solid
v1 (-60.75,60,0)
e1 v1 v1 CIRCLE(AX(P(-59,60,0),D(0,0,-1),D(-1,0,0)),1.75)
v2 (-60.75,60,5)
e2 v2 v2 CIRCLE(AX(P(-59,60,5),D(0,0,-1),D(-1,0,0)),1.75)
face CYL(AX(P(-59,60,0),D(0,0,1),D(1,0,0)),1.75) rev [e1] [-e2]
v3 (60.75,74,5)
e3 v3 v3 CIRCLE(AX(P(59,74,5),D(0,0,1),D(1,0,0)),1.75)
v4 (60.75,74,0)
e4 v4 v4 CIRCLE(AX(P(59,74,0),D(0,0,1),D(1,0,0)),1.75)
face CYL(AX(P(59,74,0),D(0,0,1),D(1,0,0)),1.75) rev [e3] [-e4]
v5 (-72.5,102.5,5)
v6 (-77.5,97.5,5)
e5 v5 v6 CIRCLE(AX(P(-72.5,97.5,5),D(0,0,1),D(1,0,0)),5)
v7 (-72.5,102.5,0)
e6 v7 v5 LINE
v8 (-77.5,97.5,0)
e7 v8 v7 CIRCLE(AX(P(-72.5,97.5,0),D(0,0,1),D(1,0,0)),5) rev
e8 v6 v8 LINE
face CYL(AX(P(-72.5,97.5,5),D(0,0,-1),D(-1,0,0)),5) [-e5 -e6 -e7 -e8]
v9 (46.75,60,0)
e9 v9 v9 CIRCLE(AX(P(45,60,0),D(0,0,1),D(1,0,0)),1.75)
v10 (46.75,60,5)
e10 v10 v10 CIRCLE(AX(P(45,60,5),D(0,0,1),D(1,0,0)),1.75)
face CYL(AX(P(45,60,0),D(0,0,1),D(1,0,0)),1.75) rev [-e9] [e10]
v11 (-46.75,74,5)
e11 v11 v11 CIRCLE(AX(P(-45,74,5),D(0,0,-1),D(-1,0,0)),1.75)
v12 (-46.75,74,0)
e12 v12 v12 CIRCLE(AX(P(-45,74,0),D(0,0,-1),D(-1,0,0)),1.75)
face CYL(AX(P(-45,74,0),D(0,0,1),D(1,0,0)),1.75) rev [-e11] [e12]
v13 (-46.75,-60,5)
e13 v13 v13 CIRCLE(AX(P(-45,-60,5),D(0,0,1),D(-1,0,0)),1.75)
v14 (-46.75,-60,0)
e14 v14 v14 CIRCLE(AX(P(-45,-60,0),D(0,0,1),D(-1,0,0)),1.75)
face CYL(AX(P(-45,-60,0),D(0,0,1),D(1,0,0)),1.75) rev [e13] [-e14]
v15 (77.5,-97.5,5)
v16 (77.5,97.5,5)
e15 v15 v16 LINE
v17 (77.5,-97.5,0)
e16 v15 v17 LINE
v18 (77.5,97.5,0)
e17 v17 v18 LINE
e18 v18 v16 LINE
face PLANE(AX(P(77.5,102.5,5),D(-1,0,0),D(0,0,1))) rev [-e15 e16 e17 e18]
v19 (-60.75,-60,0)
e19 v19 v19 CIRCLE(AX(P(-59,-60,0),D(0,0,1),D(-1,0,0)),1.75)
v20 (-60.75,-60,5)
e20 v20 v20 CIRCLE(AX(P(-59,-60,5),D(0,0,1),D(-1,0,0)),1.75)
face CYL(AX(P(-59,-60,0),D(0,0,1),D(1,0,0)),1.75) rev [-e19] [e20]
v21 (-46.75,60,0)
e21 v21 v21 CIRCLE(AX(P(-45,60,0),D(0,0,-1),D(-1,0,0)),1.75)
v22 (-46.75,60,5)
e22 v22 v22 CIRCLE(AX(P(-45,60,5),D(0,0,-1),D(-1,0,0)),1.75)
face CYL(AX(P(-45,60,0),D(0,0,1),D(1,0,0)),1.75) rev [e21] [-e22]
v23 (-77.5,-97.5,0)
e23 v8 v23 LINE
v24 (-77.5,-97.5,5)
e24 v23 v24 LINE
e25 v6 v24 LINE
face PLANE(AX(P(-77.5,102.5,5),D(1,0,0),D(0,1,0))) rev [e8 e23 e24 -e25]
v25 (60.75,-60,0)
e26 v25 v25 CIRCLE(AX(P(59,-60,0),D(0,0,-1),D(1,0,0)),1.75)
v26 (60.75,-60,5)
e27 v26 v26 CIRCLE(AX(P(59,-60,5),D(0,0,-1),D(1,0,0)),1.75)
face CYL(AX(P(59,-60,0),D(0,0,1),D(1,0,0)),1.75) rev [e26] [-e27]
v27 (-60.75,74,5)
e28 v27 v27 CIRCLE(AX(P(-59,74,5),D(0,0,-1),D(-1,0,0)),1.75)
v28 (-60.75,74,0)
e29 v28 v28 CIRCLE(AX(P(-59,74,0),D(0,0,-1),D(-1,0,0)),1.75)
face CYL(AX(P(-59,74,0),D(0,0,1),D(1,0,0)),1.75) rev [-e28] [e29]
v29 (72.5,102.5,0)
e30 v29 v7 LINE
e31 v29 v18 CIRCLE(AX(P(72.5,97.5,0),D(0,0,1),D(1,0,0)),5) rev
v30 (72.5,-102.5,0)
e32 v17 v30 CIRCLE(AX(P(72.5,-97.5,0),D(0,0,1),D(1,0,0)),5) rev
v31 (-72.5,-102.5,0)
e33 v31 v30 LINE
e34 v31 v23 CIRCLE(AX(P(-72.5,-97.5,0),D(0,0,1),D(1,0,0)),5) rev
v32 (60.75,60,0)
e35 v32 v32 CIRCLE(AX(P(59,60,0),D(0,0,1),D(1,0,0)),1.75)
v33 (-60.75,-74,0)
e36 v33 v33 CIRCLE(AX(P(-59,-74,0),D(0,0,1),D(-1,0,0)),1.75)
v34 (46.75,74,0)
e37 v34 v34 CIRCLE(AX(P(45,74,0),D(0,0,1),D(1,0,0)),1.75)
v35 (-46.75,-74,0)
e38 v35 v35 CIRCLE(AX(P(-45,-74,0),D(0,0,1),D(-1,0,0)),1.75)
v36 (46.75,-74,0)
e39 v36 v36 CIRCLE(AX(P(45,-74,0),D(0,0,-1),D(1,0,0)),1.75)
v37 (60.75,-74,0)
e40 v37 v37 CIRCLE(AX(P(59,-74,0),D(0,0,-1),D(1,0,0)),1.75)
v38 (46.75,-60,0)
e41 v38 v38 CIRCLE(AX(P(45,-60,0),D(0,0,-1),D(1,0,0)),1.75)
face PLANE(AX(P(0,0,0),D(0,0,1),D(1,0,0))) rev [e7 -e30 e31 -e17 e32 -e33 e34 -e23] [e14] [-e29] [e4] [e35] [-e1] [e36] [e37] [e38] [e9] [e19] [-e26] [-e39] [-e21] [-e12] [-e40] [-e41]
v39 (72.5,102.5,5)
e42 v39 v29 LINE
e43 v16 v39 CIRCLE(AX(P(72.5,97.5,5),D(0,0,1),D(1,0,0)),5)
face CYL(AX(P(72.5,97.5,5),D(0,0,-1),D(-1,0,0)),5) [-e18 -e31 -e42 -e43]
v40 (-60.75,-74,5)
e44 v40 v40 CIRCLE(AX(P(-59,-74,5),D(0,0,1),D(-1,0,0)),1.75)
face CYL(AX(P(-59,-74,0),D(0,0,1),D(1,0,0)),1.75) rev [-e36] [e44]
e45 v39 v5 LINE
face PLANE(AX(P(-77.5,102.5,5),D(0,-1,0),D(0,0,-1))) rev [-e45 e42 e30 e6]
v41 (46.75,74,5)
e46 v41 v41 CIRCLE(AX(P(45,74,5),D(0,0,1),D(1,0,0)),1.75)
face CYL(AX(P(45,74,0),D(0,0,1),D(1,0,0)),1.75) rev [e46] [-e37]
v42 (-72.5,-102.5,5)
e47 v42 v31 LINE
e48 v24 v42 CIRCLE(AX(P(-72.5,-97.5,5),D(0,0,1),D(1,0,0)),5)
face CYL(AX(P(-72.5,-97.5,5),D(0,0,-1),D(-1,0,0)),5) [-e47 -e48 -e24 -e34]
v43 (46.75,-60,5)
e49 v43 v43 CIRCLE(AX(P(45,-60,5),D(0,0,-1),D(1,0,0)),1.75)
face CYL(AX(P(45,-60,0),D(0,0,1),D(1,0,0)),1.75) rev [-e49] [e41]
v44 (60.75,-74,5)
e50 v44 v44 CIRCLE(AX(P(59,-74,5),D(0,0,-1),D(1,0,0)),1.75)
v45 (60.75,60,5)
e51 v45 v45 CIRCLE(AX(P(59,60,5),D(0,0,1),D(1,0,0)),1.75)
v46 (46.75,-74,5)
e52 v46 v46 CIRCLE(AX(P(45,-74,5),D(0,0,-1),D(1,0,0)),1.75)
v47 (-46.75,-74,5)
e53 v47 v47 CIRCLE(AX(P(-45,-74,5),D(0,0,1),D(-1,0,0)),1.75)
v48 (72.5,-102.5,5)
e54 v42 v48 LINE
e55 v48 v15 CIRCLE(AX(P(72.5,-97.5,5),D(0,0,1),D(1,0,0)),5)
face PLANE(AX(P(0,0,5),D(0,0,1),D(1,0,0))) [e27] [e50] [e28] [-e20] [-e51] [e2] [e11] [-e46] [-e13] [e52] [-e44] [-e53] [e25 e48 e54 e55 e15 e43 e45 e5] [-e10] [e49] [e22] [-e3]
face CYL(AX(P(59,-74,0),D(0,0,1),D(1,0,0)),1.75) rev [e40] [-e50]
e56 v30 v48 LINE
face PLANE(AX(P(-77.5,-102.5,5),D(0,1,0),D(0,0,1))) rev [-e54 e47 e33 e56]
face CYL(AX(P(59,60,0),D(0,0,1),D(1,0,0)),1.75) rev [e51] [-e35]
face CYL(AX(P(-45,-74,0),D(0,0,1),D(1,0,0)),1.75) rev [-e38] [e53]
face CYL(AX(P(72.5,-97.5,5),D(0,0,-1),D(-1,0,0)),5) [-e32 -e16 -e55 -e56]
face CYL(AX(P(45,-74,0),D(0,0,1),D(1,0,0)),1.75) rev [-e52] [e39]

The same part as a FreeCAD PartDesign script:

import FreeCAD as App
import Part
import Sketcher
from FreeCAD import Vector


def edges_at(feature, points):
    """Names of the edges that pass closest to the given points."""
    edges = feature.Shape.Edges
    near = lambda p: min(range(len(edges)), key=lambda i: edges[i].distToShape(Part.Vertex(*p))[0])
    return sorted({f"Edge{near(p) + 1}" for p in points})

doc = App.newDocument("Part")
params = doc.addObject("Spreadsheet::Sheet", "Params")
for row, (alias, value) in enumerate([
    ("sketch1_width", "155 mm"),
    ("sketch1_height", "205 mm"),
    ("pad1_length", "5 mm"),
    ("sketch2_diameter", "3.5 mm"),
    ("sketch3_diameter", "3.5 mm"),
    ("fillet_radius", "5 mm"),
], start=1):
    params.set(f"A{row}", alias)
    params.set(f"B{row}", "=" + value)
    params.setAlias(f"B{row}", alias)

body = doc.addObject("PartDesign::Body", "Body")

sketch1 = body.newObject("Sketcher::SketchObject", "Sketch")
sketch1.AttachmentSupport = (doc.getObject("XY_Plane"), [""])
sketch1.MapMode = "FlatFace"
sketch1.addGeometry([
    Part.LineSegment(Vector(-78, 102, 0), Vector(-78, -102, 0)),
    Part.LineSegment(Vector(-78, -102, 0), Vector(78, -102, 0)),
    Part.LineSegment(Vector(78, -102, 0), Vector(78, 102, 0)),
    Part.LineSegment(Vector(78, 102, 0), Vector(-78, 102, 0)),
], False)
sketch1.addConstraint([
    Sketcher.Constraint("Coincident", 0, 2, 1, 1),
    Sketcher.Constraint("Coincident", 1, 2, 2, 1),
    Sketcher.Constraint("Coincident", 2, 2, 3, 1),
    Sketcher.Constraint("Coincident", 3, 2, 0, 1),
    Sketcher.Constraint("Vertical", 0),
    Sketcher.Constraint("Horizontal", 1),
    Sketcher.Constraint("Vertical", 2),
    Sketcher.Constraint("Horizontal", 3),
    Sketcher.Constraint("Symmetric", 0, 2, 2, 2, -1, 1),
    Sketcher.Constraint("DistanceX", 1, 1, 1, 2, 155.0),
    Sketcher.Constraint("DistanceY", 0, 2, 0, 1, 205.0),
])
sketch1.setExpression("Constraints[9]", "Params.sketch1_width")
sketch1.setExpression("Constraints[10]", "Params.sketch1_height")
pad1 = body.newObject("PartDesign::Pad", "Pad")
pad1.Profile = sketch1
pad1.setExpression("Length", "Params.pad1_length")

sketch2 = body.newObject("Sketcher::SketchObject", "Sketch001")
sketch2.AttachmentSupport = (doc.getObject("XY_Plane"), [""])
sketch2.MapMode = "FlatFace"
sketch2.AttachmentOffset = App.Placement(Vector(0, 0, 5), App.Rotation())
sketch2.addGeometry([
    Part.Circle(Vector(45, 74, 0), Vector(0, 0, 1), 1.8),
    Part.Circle(Vector(59, 74, 0), Vector(0, 0, 1), 1.8),
    Part.Circle(Vector(45, 60, 0), Vector(0, 0, 1), 1.8),
    Part.Circle(Vector(59, 60, 0), Vector(0, 0, 1), 1.8),
], False)
sketch2.addConstraint([
    Sketcher.Constraint("Equal", 0, 1),
    Sketcher.Constraint("Equal", 1, 2),
    Sketcher.Constraint("Equal", 2, 3),
    Sketcher.Constraint("Horizontal", 0, 3, 1, 3),
    Sketcher.Constraint("Horizontal", 2, 3, 3, 3),
    Sketcher.Constraint("Vertical", 0, 3, 2, 3),
    Sketcher.Constraint("Vertical", 1, 3, 3, 3),
    Sketcher.Constraint("Diameter", 0, 3.5),
    Sketcher.Constraint("DistanceX", -1, 1, 0, 3, 45.0),
    Sketcher.Constraint("DistanceY", -1, 1, 0, 3, 74.0),
    Sketcher.Constraint("DistanceX", -1, 1, 1, 3, 59.0),
    Sketcher.Constraint("DistanceY", -1, 1, 2, 3, 60.0),
])
sketch2.setExpression("Constraints[7]", "Params.sketch2_diameter")
pocket1 = body.newObject("PartDesign::Pocket", "Pocket")
pocket1.Profile = sketch2
pocket1.Type = "ThroughAll"
doc.recompute()

mirrored = body.newObject("PartDesign::Mirrored", "Mirrored")
mirrored.Originals = [pocket1]
mirrored.MirrorPlane = (doc.getObject("XZ_Plane"), [""])
body.Tip = mirrored
doc.recompute()

mirrored2 = body.newObject("PartDesign::Mirrored", "Mirrored001")
mirrored2.Originals = [pocket1]
mirrored2.MirrorPlane = (doc.getObject("YZ_Plane"), [""])
body.Tip = mirrored2

sketch3 = body.newObject("Sketcher::SketchObject", "Sketch002")
sketch3.AttachmentSupport = (doc.getObject("XY_Plane"), [""])
sketch3.MapMode = "FlatFace"
sketch3.AttachmentOffset = App.Placement(Vector(0, 0, 5), App.Rotation())
sketch3.addGeometry([
    Part.Circle(Vector(-45, -74, 0), Vector(0, 0, 1), 1.8),
    Part.Circle(Vector(-59, -74, 0), Vector(0, 0, 1), 1.8),
    Part.Circle(Vector(-45, -60, 0), Vector(0, 0, 1), 1.8),
    Part.Circle(Vector(-59, -60, 0), Vector(0, 0, 1), 1.8),
], False)
sketch3.addConstraint([
    Sketcher.Constraint("Equal", 0, 1),
    Sketcher.Constraint("Equal", 1, 2),
    Sketcher.Constraint("Equal", 2, 3),
    Sketcher.Constraint("Horizontal", 0, 3, 1, 3),
    Sketcher.Constraint("Horizontal", 2, 3, 3, 3),
    Sketcher.Constraint("Vertical", 0, 3, 2, 3),
    Sketcher.Constraint("Vertical", 1, 3, 3, 3),
    Sketcher.Constraint("Diameter", 0, 3.5),
    Sketcher.Constraint("DistanceX", 0, 3, -1, 1, 45.0),
    Sketcher.Constraint("DistanceY", 0, 3, -1, 1, 74.0),
    Sketcher.Constraint("DistanceX", 1, 3, -1, 1, 59.0),
    Sketcher.Constraint("DistanceY", 2, 3, -1, 1, 60.0),
])
sketch3.setExpression("Constraints[7]", "Params.sketch3_diameter")
pocket2 = body.newObject("PartDesign::Pocket", "Pocket001")
pocket2.Profile = sketch3
pocket2.Type = "ThroughAll"
doc.recompute()

fillet = body.newObject("PartDesign::Fillet", "Fillet")
fillet.Base = (pocket2, edges_at(pocket2, [
    (77.5, -102.5, 2.5),
    (-77.5, -102.5, 2.5),
    (-77.5, 102.5, 2.5),
    (77.5, 102.5, 2.5),
]))
fillet.setExpression("Radius", "Params.fillet_radius")

doc.recompute()
